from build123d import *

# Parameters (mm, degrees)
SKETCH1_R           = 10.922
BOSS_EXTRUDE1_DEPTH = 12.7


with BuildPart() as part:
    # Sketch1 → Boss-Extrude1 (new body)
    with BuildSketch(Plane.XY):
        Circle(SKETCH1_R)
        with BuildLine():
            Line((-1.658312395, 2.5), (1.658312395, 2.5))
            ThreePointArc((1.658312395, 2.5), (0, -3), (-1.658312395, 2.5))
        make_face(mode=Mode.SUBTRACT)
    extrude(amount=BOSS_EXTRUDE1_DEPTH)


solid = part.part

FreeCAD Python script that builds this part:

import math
import FreeCAD as App
import Part
import Sketcher

V = App.Vector
Q = App.Units.Quantity

doc = App.newDocument("Part")
body = doc.addObject("PartDesign::Body", "Body")

# Sketch on XY plane
sketch1 = doc.addObject("Sketcher::SketchObject", "Sketch")
body.addObject(sketch1)
sketch1.AttachmentSupport = (doc.XY_Plane, [""])
sketch1.MapMode = "FlatFace"
sketch1.addGeometry([
    Part.Circle(V(0, 0, 0), V(0, 0, 1), 10.9),
    Part.ArcOfCircle(Part.Circle(V(0, 0, 0), V(0, 0, 1), 3), math.radians(124), math.radians(416)),
    Part.LineSegment(V(-1.7, 2.5, 0), V(1.7, 2.5, 0)),
], False)
sketch1.addConstraint([
    Sketcher.Constraint("Coincident", 1, 1, 2, 1),
    Sketcher.Constraint("Coincident", 2, 2, 1, 2),
    Sketcher.Constraint("Horizontal", 2),
    Sketcher.Constraint("Coincident", 0, 3, -1, 1),
    Sketcher.Constraint("Coincident", 1, 3, -1, 1),
    Sketcher.Constraint("Diameter", 0, Q("0.86 in")),
    Sketcher.Constraint("Radius", 1, Q("3 mm")),
    Sketcher.Constraint("DistanceY", -1, 1, 1, 1, Q("2.5 mm")),
])
pad1 = doc.addObject("PartDesign::Pad", "Pad")
body.addObject(pad1)
pad1.Profile = sketch1
pad1.Length = Q("0.5 in")

doc.recompute()
